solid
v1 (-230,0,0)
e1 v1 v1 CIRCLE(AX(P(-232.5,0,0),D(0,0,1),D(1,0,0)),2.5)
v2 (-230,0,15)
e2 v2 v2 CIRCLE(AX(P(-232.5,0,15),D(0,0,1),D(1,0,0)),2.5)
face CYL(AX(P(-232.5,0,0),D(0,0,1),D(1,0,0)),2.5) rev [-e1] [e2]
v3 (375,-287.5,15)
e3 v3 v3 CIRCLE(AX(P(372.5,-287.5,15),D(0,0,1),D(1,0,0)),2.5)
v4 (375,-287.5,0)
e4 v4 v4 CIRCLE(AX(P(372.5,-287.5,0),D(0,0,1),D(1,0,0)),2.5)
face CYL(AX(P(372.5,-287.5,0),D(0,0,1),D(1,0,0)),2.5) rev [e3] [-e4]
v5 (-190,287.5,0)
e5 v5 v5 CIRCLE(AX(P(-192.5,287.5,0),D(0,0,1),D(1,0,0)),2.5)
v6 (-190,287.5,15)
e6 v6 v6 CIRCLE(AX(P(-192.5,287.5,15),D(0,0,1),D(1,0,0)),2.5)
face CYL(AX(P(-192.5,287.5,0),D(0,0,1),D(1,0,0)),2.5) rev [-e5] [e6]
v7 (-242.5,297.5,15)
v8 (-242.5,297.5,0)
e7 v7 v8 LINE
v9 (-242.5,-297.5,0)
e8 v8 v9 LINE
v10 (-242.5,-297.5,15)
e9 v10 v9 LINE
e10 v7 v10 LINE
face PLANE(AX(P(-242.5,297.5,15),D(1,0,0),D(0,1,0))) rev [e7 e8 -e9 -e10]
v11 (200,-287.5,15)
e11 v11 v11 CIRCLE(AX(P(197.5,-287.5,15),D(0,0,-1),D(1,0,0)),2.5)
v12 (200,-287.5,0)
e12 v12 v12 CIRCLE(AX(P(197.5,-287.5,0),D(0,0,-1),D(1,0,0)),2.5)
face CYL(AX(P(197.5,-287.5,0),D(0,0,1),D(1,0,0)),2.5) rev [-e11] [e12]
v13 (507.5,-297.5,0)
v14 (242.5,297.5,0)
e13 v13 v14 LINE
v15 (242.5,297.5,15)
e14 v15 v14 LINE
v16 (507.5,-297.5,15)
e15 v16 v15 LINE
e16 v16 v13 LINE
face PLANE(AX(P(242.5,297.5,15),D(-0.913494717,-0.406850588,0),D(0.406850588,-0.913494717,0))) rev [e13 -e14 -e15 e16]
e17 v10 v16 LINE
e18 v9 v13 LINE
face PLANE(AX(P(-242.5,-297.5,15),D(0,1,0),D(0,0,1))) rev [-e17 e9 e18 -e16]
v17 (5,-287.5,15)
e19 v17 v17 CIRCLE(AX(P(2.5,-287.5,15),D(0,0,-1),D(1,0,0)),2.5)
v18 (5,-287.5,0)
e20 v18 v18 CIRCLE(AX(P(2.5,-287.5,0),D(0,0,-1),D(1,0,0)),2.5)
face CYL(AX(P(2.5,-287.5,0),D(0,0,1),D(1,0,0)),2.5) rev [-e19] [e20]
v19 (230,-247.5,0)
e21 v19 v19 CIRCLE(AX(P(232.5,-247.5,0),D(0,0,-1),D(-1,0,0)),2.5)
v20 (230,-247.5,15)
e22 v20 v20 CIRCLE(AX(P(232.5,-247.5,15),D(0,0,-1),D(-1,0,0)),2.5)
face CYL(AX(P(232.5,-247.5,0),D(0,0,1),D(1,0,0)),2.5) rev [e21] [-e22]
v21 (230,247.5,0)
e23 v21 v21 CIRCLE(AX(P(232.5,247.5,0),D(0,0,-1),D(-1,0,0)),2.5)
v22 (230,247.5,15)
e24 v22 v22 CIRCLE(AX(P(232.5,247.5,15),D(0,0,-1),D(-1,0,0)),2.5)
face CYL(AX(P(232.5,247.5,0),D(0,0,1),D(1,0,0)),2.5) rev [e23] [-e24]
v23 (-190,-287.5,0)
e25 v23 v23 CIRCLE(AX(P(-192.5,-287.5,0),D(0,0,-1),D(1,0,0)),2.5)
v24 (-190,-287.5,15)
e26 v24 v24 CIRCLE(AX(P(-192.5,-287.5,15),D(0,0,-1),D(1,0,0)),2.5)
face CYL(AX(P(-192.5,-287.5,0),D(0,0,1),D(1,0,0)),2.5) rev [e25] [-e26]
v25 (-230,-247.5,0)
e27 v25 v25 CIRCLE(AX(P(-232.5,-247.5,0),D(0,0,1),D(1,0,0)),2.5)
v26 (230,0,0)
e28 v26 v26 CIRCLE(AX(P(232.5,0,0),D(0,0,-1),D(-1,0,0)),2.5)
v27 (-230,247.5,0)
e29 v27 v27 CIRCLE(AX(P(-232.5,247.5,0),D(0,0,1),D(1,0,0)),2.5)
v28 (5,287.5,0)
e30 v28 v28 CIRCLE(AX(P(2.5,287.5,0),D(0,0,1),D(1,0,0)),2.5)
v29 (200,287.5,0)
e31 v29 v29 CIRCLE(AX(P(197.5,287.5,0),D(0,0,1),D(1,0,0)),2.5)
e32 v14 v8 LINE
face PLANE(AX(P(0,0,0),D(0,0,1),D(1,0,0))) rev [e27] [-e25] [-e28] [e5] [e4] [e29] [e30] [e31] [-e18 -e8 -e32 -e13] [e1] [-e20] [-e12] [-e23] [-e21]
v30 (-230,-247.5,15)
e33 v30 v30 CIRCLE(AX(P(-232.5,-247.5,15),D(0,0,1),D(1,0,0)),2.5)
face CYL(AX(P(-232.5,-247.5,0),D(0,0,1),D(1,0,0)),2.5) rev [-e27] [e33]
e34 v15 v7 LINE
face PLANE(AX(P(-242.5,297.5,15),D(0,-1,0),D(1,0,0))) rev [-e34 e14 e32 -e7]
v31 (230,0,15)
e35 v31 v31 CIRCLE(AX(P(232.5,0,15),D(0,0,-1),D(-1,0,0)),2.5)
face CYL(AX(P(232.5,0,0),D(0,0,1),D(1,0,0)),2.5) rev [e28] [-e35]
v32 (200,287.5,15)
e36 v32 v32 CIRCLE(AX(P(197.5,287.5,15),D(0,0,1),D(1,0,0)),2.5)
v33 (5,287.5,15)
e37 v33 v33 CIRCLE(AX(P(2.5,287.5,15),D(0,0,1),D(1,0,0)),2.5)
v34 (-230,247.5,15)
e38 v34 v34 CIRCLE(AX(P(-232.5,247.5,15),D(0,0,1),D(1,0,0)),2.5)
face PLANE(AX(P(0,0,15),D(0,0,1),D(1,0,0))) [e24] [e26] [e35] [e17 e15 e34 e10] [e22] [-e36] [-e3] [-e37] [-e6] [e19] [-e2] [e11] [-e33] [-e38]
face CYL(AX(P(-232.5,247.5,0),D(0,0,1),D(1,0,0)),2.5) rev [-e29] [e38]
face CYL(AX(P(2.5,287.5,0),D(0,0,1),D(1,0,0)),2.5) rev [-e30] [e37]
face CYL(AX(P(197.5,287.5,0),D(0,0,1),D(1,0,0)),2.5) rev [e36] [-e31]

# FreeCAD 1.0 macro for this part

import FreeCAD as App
import Part
import Sketcher
from FreeCAD import Vector


def add_polygon(sketch, points):
    """Adds a closed chain of lines whose ends are joined by coincident constraints."""
    first, n = sketch.GeometryCount, len(points)
    for a, b in zip(points, points[1:] + points[:1]):
        sketch.addGeometry(Part.LineSegment(App.Vector(*a, 0), App.Vector(*b, 0)), False)
    for i in range(n):
        sketch.addConstraint(Sketcher.Constraint("Coincident", first + i, 2, first + (i + 1) % n, 1))

doc = App.newDocument("Part")
body = doc.addObject("PartDesign::Body", "Body")

sketch1 = body.newObject("Sketcher::SketchObject", "Sketch")
sketch1.AttachmentSupport = (doc.getObject("XY_Plane"), [""])
sketch1.MapMode = "FlatFace"
add_polygon(sketch1, [(242.5, 297.5), (-242.5, 297.5), (-242.5, -297.5), (507.5, -297.5)])
sketch1.addConstraint([
    Sketcher.Constraint("Horizontal", 0),
    Sketcher.Constraint("Vertical", 1),
    Sketcher.Constraint("Horizontal", 2),
    Sketcher.Constraint("Symmetric", 1, 2, 3, 2, -1, 1),
    Sketcher.Constraint("DistanceX", 0, 2, 0, 1, 485.0),
    Sketcher.Constraint("DistanceX", 2, 1, 2, 2, 750.0),
    Sketcher.Constraint("DistanceY", 1, 2, 1, 1, 595.0),
])
pad1 = body.newObject("PartDesign::Pad", "Pad")
pad1.Profile = sketch1
pad1.Length = 15

sketch2 = body.newObject("Sketcher::SketchObject", "Sketch001")
sketch2.AttachmentSupport = (doc.getObject("XY_Plane"), [""])
sketch2.MapMode = "FlatFace"
sketch2.AttachmentOffset = App.Placement(Vector(0, 0, 15), App.Rotation())
sketch2.addGeometry([
    Part.Circle(Vector(-192.5, 287.5, 0), Vector(0, 0, 1), 2.5),
    Part.Circle(Vector(2.5, 287.5, 0), Vector(0, 0, 1), 2.5),
    Part.Circle(Vector(197.5, 287.5, 0), Vector(0, 0, 1), 2.5),
], False)
sketch2.addConstraint([
    Sketcher.Constraint("Equal", 0, 1),
    Sketcher.Constraint("Equal", 1, 2),
    Sketcher.Constraint("Horizontal", 0, 3, 1, 3),
    Sketcher.Constraint("Horizontal", 1, 3, 2, 3),
    Sketcher.Constraint("Diameter", 0, 5.0),
    Sketcher.Constraint("DistanceX", 0, 3, 1, 3, 195.0),
    Sketcher.Constraint("DistanceX", 1, 3, 2, 3, 195.0),
    Sketcher.Constraint("DistanceX", 0, 3, -1, 1, 192.5),
    Sketcher.Constraint("DistanceY", -1, 1, 0, 3, 287.5),
])
pocket1 = body.newObject("PartDesign::Pocket", "Pocket")
pocket1.Profile = sketch2
pocket1.Type = "ThroughAll"

sketch3 = body.newObject("Sketcher::SketchObject", "Sketch002")
sketch3.AttachmentSupport = (doc.getObject("XY_Plane"), [""])
sketch3.MapMode = "FlatFace"
sketch3.AttachmentOffset = App.Placement(Vector(0, 0, 15), App.Rotation())
sketch3.addGeometry([
    Part.Circle(Vector(-232.5, 247.5, 0), Vector(0, 0, 1), 2.5),
    Part.Circle(Vector(-232.5, 0, 0), Vector(0, 0, 1), 2.5),
    Part.Circle(Vector(-232.5, -247.5, 0), Vector(0, 0, 1), 2.5),
], False)
sketch3.addConstraint([
    Sketcher.Constraint("Equal", 0, 1),
    Sketcher.Constraint("Equal", 1, 2),
    Sketcher.Constraint("Symmetric", 0, 3, 2, 3, -1),
    Sketcher.Constraint("PointOnObject", 1, 3, -1),
    Sketcher.Constraint("Vertical", 0, 3, 1, 3),
    Sketcher.Constraint("Diameter", 0, 5.0),
    Sketcher.Constraint("DistanceY", 2, 3, 0, 3, 495.0),
    Sketcher.Constraint("DistanceX", 0, 3, -1, 1, 232.5),
])
pocket2 = body.newObject("PartDesign::Pocket", "Pocket001")
pocket2.Profile = sketch3
pocket2.Type = "ThroughAll"
doc.recompute()

mirrored = body.newObject("PartDesign::Mirrored", "Mirrored")
mirrored.Originals = [pocket1]
mirrored.MirrorPlane = (doc.getObject("XZ_Plane"), [""])
body.Tip = mirrored
doc.recompute()

mirrored2 = body.newObject("PartDesign::Mirrored", "Mirrored001")
mirrored2.Originals = [pocket2]
mirrored2.MirrorPlane = (doc.getObject("YZ_Plane"), [""])
body.Tip = mirrored2

sketch4 = body.newObject("Sketcher::SketchObject", "Sketch003")
sketch4.AttachmentSupport = (doc.getObject("XY_Plane"), [""])
sketch4.MapMode = "FlatFace"
sketch4.AttachmentOffset = App.Placement(Vector(0, 0, 15), App.Rotation())
sketch4.addGeometry(Part.Circle(Vector(372.5, -287.5, 0), Vector(0, 0, 1), 2.5), False)
sketch4.addConstraint([
    Sketcher.Constraint("Diameter", 0, 5.0),
    Sketcher.Constraint("DistanceX", -1, 1, 0, 3, 372.5),
    Sketcher.Constraint("DistanceY", 0, 3, -1, 1, 287.5),
])
pocket3 = body.newObject("PartDesign::Pocket", "Pocket002")
pocket3.Profile = sketch4
pocket3.Type = "ThroughAll"

doc.recompute()
